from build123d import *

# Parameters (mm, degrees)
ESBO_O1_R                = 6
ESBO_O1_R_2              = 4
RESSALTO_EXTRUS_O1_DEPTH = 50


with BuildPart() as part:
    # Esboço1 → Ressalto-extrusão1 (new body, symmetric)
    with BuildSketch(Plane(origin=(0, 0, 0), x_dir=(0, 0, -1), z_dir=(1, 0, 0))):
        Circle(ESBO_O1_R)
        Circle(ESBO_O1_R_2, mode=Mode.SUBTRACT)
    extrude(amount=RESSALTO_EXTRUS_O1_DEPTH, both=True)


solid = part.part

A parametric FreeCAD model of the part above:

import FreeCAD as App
import Part
import Sketcher

V = App.Vector

doc = App.newDocument("Part")
body = doc.addObject("PartDesign::Body", "Body")

# Sketch on YZ plane
sketch1 = body.newObject("Sketcher::SketchObject", "Sketch")
sketch1.AttachmentSupport = (doc.getObject("YZ_Plane"), [""])
sketch1.MapMode = "FlatFace"
sketch1.addGeometry(Part.Circle(V(0, 0, 0), V(0, 0, 1), 6), False)
sketch1.addGeometry(Part.Circle(V(0, 0, 0), V(0, 0, 1), 4), False)
sketch1.addConstraint(Sketcher.Constraint("Coincident", 0, 3, -1, 1))
sketch1.addConstraint(Sketcher.Constraint("Coincident", 1, 3, -1, 1))
sketch1.addConstraint(Sketcher.Constraint("Diameter", 0, 12.0))
sketch1.addConstraint(Sketcher.Constraint("Diameter", 1, 8.0))
pad1 = body.newObject("PartDesign::Pad", "Pad")
pad1.Profile = sketch1
pad1.Length = 100
pad1.Midplane = True

doc.recompute()
